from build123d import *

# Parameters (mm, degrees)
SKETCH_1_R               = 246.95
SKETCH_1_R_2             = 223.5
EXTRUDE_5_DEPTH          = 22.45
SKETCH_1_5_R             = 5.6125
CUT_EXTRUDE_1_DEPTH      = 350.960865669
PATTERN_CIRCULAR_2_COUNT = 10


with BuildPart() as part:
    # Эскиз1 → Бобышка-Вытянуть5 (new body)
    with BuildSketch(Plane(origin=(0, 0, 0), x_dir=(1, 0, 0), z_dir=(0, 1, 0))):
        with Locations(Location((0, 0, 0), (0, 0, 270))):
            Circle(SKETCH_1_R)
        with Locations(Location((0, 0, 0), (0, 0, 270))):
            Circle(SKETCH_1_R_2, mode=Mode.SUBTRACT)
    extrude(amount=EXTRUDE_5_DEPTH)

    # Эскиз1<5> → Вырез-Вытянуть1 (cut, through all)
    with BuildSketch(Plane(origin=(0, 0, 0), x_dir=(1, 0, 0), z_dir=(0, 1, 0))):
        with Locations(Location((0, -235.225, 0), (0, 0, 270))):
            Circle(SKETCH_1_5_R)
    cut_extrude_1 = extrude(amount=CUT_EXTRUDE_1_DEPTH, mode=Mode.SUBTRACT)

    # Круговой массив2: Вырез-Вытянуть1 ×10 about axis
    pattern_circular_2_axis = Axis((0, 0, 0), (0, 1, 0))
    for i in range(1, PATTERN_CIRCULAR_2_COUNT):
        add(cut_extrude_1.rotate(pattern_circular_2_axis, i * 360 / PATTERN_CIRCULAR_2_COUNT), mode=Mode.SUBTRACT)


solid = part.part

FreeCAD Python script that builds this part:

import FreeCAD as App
import Part
import Sketcher
from FreeCAD import Vector
Q = App.Units.Quantity

doc = App.newDocument("Part")
body = doc.addObject("PartDesign::Body", "Body")

# Sketch on XZ plane
sketch1 = doc.addObject("Sketcher::SketchObject", "Sketch")
body.addObject(sketch1)
sketch1.AttachmentSupport = (doc.XZ_Plane, [""])
sketch1.MapMode = "FlatFace"
sketch1.addGeometry(Part.Circle(Vector(0, 0, 0), Vector(0, 0, 1), 247), False)
sketch1.addGeometry(Part.Circle(Vector(0, 0, 0), Vector(0, 0, 1), 224), False)
sketch1.addConstraint(Sketcher.Constraint("Coincident", 0, 3, -1, 1))
sketch1.addConstraint(Sketcher.Constraint("Coincident", 1, 3, -1, 1))
sketch1.addConstraint(Sketcher.Constraint("Diameter", 1, Q("447 mm")))
sketch1.addConstraint(Sketcher.Constraint("Diameter", 0, Q("493.9 mm")))
pad1 = doc.addObject("PartDesign::Pad", "Pad")
body.addObject(pad1)
pad1.Profile = sketch1
pad1.Length = 22.45
pad1.Reversed = True

# Sketch on XZ plane
sketch2 = doc.addObject("Sketcher::SketchObject", "Sketch001")
body.addObject(sketch2)
sketch2.AttachmentSupport = (doc.XZ_Plane, [""])
sketch2.MapMode = "FlatFace"
sketch2.addGeometry(Part.Circle(Vector(0, 235, 0), Vector(0, 0, 1), 6), False)
sketch2.addConstraint(Sketcher.Constraint("PointOnObject", 0, 3, -2))
sketch2.addConstraint(Sketcher.Constraint("Diameter", 0, Q("11.225 mm")))
sketch2.addConstraint(Sketcher.Constraint("DistanceY", -1, 1, 0, 3, Q("235.225 mm")))
pocket1 = doc.addObject("PartDesign::Pocket", "Pocket")
body.addObject(pocket1)
pocket1.Profile = sketch2
pocket1.Type = "ThroughAll"
doc.recompute()

polarpattern = doc.addObject("PartDesign::PolarPattern", "PolarPattern")
body.addObject(polarpattern)
polarpattern.Originals = [pocket1]
polarpattern.Axis = (doc.Y_Axis, [""])
polarpattern.Angle = 360
polarpattern.Occurrences = 10
body.Tip = polarpattern

doc.recompute()
